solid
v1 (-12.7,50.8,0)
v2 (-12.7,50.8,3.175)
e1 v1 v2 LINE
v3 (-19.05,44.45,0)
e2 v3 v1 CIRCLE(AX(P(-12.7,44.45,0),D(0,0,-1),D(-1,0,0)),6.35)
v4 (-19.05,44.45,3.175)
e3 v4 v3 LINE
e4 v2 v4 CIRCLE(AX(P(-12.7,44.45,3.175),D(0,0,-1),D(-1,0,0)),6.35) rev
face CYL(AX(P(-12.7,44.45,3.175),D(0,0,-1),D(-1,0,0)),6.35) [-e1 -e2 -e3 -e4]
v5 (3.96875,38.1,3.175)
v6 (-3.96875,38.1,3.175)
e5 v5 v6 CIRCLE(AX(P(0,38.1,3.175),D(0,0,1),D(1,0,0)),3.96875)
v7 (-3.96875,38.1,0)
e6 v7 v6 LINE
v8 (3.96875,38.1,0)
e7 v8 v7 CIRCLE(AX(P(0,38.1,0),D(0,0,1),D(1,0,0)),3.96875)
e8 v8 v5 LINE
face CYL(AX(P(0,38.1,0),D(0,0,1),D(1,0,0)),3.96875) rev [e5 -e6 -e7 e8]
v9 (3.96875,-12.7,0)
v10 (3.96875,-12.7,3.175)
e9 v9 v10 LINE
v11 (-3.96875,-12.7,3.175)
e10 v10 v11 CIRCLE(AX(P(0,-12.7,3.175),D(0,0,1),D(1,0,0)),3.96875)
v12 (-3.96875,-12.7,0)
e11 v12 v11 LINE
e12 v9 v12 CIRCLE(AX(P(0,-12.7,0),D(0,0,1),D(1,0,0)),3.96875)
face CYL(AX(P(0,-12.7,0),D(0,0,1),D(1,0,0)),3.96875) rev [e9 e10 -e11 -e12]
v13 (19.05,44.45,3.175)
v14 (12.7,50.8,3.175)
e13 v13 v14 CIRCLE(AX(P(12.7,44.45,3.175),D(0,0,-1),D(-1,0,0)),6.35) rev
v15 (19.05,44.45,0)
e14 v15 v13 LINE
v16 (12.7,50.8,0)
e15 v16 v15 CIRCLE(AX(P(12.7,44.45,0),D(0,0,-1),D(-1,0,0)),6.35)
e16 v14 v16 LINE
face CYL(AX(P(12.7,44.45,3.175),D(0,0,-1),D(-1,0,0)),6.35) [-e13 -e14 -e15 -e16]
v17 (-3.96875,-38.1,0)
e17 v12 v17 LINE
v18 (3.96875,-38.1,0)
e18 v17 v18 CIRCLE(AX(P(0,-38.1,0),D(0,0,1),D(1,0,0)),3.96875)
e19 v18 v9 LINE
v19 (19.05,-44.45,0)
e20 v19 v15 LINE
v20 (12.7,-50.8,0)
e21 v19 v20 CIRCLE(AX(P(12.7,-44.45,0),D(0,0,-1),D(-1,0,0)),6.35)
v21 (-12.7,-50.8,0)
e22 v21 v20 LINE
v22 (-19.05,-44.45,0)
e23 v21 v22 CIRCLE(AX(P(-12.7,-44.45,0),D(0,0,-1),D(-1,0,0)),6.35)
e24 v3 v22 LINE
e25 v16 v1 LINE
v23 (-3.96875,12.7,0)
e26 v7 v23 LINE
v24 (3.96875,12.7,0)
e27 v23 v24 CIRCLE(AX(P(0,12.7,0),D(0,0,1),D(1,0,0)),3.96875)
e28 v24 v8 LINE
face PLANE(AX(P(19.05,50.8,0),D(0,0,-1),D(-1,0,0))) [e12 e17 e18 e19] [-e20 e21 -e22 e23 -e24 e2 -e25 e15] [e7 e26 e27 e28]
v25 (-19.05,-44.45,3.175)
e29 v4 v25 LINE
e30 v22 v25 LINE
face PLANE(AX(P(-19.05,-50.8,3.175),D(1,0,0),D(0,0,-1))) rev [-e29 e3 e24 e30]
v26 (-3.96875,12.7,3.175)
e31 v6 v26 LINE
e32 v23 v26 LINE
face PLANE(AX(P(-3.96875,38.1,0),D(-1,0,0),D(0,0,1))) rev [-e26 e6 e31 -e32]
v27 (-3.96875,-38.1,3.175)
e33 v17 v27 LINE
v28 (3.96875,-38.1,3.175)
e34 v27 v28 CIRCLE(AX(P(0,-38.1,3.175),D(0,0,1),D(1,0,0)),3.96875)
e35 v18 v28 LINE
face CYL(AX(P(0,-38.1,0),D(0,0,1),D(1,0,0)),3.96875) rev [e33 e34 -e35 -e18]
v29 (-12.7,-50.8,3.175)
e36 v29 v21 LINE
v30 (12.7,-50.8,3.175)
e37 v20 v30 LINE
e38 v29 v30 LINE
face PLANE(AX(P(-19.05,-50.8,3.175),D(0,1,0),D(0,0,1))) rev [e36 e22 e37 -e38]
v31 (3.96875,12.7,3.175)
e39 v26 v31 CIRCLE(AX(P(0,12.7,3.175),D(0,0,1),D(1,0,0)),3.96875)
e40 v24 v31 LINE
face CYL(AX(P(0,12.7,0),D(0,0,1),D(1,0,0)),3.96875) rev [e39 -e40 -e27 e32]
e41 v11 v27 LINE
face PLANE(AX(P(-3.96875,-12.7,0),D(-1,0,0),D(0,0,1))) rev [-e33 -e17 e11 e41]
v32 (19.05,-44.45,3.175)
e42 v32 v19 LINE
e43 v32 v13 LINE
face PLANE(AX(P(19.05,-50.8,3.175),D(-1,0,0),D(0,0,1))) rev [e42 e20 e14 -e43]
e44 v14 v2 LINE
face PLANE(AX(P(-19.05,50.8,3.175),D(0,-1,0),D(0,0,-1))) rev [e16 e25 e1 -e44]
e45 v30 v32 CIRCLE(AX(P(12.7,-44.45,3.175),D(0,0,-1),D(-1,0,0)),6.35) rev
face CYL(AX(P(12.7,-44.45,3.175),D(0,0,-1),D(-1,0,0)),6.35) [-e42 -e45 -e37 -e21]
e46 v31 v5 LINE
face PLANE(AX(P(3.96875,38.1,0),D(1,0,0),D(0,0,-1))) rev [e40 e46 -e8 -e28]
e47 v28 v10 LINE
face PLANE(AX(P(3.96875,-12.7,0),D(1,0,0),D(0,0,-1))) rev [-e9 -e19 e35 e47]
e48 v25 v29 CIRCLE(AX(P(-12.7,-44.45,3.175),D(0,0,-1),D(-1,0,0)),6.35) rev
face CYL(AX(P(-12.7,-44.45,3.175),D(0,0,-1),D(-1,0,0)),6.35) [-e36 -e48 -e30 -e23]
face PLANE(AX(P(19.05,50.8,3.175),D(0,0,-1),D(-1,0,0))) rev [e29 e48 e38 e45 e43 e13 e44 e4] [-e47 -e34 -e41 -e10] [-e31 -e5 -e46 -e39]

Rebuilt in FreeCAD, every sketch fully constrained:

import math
import FreeCAD as App
import Part
import Sketcher
from FreeCAD import Vector
Q = App.Units.Quantity


def edges_at(feature, points):
    """Names of the edges that pass closest to the given points."""
    edges = feature.Shape.Edges
    near = lambda p: min(range(len(edges)), key=lambda i: edges[i].distToShape(Part.Vertex(*p))[0])
    return sorted({f"Edge{near(p) + 1}" for p in points})

doc = App.newDocument("Part")
params = doc.addObject("Spreadsheet::Sheet", "Params")
for row, (alias, value) in enumerate([
    ("sketch1_height", "4 in"),
    ("sketch1_width", "1.5 in"),
    ("pad1_length", "0.125 in"),
    ("fillet_radius", "0.25 in"),
    ("sketch2_height", "1 in"),
    ("sketch2_radius", "0.15625 in"),
], start=1):
    params.set(f"A{row}", alias)
    params.set(f"B{row}", "=" + value)
    params.setAlias(f"B{row}", alias)

body = doc.addObject("PartDesign::Body", "Body")

# Sketch on XY plane
sketch1 = doc.addObject("Sketcher::SketchObject", "Sketch")
body.addObject(sketch1)
sketch1.AttachmentSupport = (doc.XY_Plane, [""])
sketch1.MapMode = "FlatFace"
sketch1.addGeometry(Part.LineSegment(Vector(-19, 51, 0), Vector(-19, -51, 0)), False)
sketch1.addGeometry(Part.LineSegment(Vector(-19, -51, 0), Vector(19, -51, 0)), False)
sketch1.addGeometry(Part.LineSegment(Vector(19, -51, 0), Vector(19, 51, 0)), False)
sketch1.addGeometry(Part.LineSegment(Vector(19, 51, 0), Vector(-19, 51, 0)), False)
sketch1.addConstraint(Sketcher.Constraint("Coincident", 0, 2, 1, 1))
sketch1.addConstraint(Sketcher.Constraint("Coincident", 1, 2, 2, 1))
sketch1.addConstraint(Sketcher.Constraint("Coincident", 2, 2, 3, 1))
sketch1.addConstraint(Sketcher.Constraint("Coincident", 3, 2, 0, 1))
sketch1.addConstraint(Sketcher.Constraint("Vertical", 0))
sketch1.addConstraint(Sketcher.Constraint("Horizontal", 1))
sketch1.addConstraint(Sketcher.Constraint("Vertical", 2))
sketch1.addConstraint(Sketcher.Constraint("Horizontal", 3))
sketch1.addConstraint(Sketcher.Constraint("Symmetric", 0, 2, 2, 2, -1, 1))
sketch1.addConstraint(Sketcher.Constraint("DistanceY", 0, 2, 0, 1, Q("4 in")))
sketch1.addConstraint(Sketcher.Constraint("DistanceX", 1, 1, 1, 2, Q("1.5 in")))
sketch1.setExpression("Constraints[9]", "Params.sketch1_height")
sketch1.setExpression("Constraints[10]", "Params.sketch1_width")
pad1 = doc.addObject("PartDesign::Pad", "Pad")
body.addObject(pad1)
pad1.Profile = sketch1
pad1.setExpression("Length", "Params.pad1_length")
doc.recompute()

fillet = doc.addObject("PartDesign::Fillet", "Fillet")
body.addObject(fillet)
fillet.Base = (pad1, edges_at(pad1, [
    (19.05, -50.8, 1.587),
    (-19.05, -50.8, 1.587),
    (-19.05, 50.8, 1.587),
    (19.05, 50.8, 1.587),
]))
fillet.setExpression("Radius", "Params.fillet_radius")

# Sketch on XY plane
sketch2 = doc.addObject("Sketcher::SketchObject", "Sketch001")
body.addObject(sketch2)
sketch2.AttachmentSupport = (doc.XY_Plane, [""])
sketch2.MapMode = "FlatFace"
sketch2.AttachmentOffset = App.Placement(Vector(0, 0, 0.125 * 25.4), App.Rotation())
sketch2.addGeometry(Part.LineSegment(Vector(4, 12.7, 0), Vector(4, 38.1, 0)), False)
sketch2.addGeometry(Part.ArcOfCircle(Part.Circle(Vector(0, 38.1, 0), Vector(0, 0, 1), 4), math.radians(0), math.radians(180)), False)
sketch2.addGeometry(Part.LineSegment(Vector(-4, 38.1, 0), Vector(-4, 12.7, 0)), False)
sketch2.addGeometry(Part.ArcOfCircle(Part.Circle(Vector(0, 12.7, 0), Vector(0, 0, 1), 4), math.radians(180), math.radians(360)), False)
sketch2.addGeometry(Part.LineSegment(Vector(4, -38.1, 0), Vector(4, -12.7, 0)), False)
sketch2.addGeometry(Part.ArcOfCircle(Part.Circle(Vector(0, -12.7, 0), Vector(0, 0, 1), 4), math.radians(0), math.radians(180)), False)
sketch2.addGeometry(Part.LineSegment(Vector(-4, -12.7, 0), Vector(-4, -38.1, 0)), False)
sketch2.addGeometry(Part.ArcOfCircle(Part.Circle(Vector(0, -38.1, 0), Vector(0, 0, 1), 4), math.radians(180), math.radians(360)), False)
sketch2.addConstraint(Sketcher.Constraint("Tangent", 0, 2, 1, 1))
sketch2.addConstraint(Sketcher.Constraint("Tangent", 1, 2, 2, 1))
sketch2.addConstraint(Sketcher.Constraint("Tangent", 2, 2, 3, 1))
sketch2.addConstraint(Sketcher.Constraint("Tangent", 3, 2, 0, 1))
sketch2.addConstraint(Sketcher.Constraint("Tangent", 4, 2, 5, 1))
sketch2.addConstraint(Sketcher.Constraint("Tangent", 5, 2, 6, 1))
sketch2.addConstraint(Sketcher.Constraint("Tangent", 6, 2, 7, 1))
sketch2.addConstraint(Sketcher.Constraint("Tangent", 7, 2, 4, 1))
sketch2.addConstraint(Sketcher.Constraint("Vertical", 0))
sketch2.addConstraint(Sketcher.Constraint("Vertical", 2))
sketch2.addConstraint(Sketcher.Constraint("Vertical", 4))
sketch2.addConstraint(Sketcher.Constraint("Vertical", 6))
sketch2.addConstraint(Sketcher.Constraint("Equal", 3, 5))
sketch2.addConstraint(Sketcher.Constraint("Symmetric", 3, 3, 5, 3, -1, 1))
sketch2.addConstraint(Sketcher.Constraint("Symmetric", 1, 3, 7, 3, -1))
sketch2.addConstraint(Sketcher.Constraint("DistanceY", 0, 1, 0, 2, Q("1 in")))
sketch2.addConstraint(Sketcher.Constraint("Radius", 1, Q("0.15625 in")))
sketch2.addConstraint(Sketcher.Constraint("DistanceY", 5, 3, 3, 3, Q("1 in")))
sketch2.setExpression("Constraints[15]", "Params.sketch2_height")
sketch2.setExpression("Constraints[16]", "Params.sketch2_radius")
pocket1 = doc.addObject("PartDesign::Pocket", "Pocket")
body.addObject(pocket1)
pocket1.Profile = sketch2
pocket1.Type = "ThroughAll"

doc.recompute()
